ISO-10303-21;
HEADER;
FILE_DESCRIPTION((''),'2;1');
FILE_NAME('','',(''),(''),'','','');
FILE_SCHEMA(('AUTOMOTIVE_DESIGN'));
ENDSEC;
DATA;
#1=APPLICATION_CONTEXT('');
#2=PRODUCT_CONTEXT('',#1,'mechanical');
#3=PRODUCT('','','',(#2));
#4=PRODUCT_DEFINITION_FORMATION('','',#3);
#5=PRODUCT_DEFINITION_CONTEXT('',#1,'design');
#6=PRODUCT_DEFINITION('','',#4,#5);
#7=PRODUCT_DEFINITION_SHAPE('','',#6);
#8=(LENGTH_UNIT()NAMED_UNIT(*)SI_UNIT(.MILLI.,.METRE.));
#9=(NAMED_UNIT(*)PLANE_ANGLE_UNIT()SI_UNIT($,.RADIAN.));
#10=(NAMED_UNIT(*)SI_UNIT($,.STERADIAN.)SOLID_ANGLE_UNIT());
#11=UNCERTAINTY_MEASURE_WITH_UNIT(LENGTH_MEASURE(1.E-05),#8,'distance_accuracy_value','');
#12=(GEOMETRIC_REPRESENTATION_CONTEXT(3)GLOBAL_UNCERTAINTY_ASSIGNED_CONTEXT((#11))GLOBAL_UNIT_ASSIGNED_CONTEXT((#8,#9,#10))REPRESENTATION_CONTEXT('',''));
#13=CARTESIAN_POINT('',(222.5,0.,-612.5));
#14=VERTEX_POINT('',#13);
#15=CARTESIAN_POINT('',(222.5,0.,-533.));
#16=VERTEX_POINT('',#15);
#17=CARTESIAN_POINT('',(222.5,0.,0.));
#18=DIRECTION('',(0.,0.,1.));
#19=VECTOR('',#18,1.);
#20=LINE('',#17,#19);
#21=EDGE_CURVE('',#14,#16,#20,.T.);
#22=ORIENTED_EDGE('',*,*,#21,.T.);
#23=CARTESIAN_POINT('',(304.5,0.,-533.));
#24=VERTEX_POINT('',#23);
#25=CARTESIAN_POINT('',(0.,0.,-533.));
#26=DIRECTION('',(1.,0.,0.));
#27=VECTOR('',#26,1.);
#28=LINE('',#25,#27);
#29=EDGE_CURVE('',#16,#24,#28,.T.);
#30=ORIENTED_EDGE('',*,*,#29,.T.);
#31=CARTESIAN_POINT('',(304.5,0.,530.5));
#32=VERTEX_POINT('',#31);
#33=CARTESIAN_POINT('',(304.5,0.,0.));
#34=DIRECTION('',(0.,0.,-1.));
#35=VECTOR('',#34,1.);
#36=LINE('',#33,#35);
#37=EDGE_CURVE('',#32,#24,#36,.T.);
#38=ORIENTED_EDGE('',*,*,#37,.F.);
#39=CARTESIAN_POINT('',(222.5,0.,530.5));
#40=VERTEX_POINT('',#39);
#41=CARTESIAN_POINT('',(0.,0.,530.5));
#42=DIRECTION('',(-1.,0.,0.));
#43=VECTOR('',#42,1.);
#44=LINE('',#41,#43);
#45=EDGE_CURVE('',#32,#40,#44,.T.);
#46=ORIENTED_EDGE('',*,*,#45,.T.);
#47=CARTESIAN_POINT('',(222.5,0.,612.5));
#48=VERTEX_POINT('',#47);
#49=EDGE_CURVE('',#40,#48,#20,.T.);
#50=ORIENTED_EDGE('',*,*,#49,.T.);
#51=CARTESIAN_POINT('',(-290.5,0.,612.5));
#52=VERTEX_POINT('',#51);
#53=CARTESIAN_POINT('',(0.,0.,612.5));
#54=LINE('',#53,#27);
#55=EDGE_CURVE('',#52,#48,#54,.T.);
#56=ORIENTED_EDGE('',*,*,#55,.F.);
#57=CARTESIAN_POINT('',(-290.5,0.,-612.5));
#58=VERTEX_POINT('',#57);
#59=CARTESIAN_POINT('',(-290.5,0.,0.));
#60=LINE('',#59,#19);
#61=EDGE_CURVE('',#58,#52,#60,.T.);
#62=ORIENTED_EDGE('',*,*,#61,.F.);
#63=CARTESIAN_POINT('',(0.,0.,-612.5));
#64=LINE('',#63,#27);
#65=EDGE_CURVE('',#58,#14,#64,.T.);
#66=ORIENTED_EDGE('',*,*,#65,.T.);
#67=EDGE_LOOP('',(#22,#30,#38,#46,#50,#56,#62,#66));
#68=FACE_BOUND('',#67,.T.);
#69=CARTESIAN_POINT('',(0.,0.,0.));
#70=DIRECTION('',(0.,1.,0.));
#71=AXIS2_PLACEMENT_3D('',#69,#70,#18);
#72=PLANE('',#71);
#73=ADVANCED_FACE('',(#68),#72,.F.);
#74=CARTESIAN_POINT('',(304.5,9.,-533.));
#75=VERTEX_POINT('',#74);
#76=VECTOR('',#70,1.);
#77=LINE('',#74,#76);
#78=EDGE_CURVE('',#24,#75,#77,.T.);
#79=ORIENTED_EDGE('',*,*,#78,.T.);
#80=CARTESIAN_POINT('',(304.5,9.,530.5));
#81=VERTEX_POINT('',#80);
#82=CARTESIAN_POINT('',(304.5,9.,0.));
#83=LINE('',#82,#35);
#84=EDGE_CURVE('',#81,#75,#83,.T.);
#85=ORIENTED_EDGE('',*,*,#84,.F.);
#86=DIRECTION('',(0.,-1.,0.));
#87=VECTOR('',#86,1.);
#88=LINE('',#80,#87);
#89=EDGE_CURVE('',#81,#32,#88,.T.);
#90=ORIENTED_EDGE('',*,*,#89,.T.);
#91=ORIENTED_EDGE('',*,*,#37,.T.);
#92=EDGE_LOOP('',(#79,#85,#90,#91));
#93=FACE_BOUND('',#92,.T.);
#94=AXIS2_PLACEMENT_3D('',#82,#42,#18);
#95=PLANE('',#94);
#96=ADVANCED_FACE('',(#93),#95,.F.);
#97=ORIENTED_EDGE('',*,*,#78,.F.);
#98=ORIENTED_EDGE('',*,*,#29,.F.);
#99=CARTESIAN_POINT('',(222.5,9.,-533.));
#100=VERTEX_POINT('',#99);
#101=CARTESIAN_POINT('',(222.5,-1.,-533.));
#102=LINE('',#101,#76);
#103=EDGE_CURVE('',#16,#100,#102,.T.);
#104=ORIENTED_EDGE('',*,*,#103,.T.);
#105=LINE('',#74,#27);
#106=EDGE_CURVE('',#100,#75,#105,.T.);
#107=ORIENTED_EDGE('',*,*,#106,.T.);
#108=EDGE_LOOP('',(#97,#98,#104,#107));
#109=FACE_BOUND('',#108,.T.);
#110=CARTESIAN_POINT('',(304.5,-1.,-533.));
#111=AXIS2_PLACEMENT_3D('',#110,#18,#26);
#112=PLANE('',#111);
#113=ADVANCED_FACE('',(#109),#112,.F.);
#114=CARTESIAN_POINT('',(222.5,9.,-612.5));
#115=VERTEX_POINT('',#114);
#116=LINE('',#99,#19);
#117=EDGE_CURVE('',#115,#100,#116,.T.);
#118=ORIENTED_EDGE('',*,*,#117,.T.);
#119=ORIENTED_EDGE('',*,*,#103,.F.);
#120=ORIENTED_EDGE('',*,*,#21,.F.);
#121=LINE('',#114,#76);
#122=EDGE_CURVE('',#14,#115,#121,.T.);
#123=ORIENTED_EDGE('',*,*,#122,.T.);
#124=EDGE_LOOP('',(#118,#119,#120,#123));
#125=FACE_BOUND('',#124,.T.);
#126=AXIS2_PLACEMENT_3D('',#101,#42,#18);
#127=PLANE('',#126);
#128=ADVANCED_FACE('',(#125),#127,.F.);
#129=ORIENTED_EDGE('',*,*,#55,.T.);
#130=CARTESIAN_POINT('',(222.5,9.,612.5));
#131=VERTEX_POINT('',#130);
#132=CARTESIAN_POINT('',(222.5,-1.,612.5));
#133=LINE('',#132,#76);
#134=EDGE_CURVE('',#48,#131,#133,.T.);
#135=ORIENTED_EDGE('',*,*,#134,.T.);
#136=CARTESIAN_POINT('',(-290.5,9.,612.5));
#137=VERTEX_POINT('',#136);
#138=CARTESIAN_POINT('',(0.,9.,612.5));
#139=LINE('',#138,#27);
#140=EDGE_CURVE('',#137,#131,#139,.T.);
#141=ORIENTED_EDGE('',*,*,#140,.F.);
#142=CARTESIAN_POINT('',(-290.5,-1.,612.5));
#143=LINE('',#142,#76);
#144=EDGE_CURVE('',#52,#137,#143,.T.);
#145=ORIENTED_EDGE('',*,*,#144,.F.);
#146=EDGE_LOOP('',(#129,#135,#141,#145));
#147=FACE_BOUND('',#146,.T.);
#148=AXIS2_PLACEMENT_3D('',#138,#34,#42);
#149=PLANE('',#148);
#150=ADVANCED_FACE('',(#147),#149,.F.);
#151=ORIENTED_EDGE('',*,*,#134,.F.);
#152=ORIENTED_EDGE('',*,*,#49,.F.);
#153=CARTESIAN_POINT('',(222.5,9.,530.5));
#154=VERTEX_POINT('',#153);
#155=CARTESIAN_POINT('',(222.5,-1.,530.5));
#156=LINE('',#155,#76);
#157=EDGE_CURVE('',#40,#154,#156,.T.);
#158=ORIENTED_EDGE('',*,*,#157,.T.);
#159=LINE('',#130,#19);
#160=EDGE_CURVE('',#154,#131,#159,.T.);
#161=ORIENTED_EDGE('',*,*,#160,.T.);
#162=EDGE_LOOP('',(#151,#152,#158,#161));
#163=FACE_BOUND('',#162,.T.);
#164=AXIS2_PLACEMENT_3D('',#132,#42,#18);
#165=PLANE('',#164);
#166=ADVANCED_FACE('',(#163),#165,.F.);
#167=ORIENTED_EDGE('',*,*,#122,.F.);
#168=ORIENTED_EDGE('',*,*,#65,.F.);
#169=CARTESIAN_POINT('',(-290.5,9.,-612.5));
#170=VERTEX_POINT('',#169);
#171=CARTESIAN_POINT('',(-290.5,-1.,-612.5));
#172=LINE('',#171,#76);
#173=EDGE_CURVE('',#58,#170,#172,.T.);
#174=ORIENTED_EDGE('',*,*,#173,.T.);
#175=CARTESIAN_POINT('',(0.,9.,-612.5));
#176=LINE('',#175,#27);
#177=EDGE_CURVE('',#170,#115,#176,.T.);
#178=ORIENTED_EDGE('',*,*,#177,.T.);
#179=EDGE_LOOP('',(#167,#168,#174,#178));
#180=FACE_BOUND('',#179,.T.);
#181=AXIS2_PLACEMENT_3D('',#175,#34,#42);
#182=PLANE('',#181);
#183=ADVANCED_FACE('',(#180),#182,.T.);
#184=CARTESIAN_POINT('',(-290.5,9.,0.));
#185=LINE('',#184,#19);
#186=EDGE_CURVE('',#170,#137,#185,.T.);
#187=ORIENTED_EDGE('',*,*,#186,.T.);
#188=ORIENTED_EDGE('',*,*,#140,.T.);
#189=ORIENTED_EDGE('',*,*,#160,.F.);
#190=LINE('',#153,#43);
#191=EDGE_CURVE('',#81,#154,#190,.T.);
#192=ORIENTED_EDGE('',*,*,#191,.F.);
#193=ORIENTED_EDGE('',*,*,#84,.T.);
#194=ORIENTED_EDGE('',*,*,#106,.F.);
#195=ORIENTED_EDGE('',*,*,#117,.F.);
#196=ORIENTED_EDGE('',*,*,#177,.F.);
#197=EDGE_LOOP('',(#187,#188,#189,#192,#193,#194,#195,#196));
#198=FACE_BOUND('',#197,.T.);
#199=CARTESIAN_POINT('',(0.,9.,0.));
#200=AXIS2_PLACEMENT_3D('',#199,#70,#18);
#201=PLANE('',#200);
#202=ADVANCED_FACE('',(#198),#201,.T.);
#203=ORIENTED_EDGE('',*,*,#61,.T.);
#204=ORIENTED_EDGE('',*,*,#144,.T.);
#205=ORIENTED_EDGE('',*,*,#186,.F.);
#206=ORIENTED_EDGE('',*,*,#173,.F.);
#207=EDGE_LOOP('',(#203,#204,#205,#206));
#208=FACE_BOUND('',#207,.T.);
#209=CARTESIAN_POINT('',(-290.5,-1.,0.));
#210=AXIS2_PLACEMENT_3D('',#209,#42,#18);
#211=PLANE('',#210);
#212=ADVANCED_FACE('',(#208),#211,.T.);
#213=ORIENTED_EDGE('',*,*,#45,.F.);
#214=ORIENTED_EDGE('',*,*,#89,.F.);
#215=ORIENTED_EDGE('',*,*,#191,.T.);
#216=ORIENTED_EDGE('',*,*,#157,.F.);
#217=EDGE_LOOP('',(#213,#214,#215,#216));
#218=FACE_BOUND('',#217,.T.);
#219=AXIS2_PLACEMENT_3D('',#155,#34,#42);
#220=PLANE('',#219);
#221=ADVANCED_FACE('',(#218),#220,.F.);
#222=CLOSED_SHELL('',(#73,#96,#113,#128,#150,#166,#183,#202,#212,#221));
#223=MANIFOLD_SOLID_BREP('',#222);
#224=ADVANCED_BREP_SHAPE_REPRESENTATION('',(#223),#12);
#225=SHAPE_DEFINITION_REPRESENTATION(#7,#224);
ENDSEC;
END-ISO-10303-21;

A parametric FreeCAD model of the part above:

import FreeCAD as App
import Part
import Sketcher

V = App.Vector
Q = App.Units.Quantity


def add_polygon(sketch, points):
    """Adds a closed chain of lines whose ends are joined by coincident constraints."""
    first, n = sketch.GeometryCount, len(points)
    for a, b in zip(points, points[1:] + points[:1]):
        sketch.addGeometry(Part.LineSegment(App.Vector(*a, 0), App.Vector(*b, 0)), False)
    for i in range(n):
        sketch.addConstraint(Sketcher.Constraint("Coincident", first + i, 2, first + (i + 1) % n, 1))

doc = App.newDocument("Part")
body = doc.addObject("PartDesign::Body", "Body")

# Sketch on XZ plane
sketch1 = body.newObject("Sketcher::SketchObject", "Sketch")
sketch1.AttachmentSupport = (doc.getObject("XZ_Plane"), [""])
sketch1.MapMode = "FlatFace"
add_polygon(sketch1, [(-304, 612), (304, 612), (304, -612), (-304, -612)])  # lines 0-3
sketch1.addConstraint([
    Sketcher.Constraint("Horizontal", 0),
    Sketcher.Constraint("Vertical", 1),
    Sketcher.Constraint("Horizontal", 2),
    Sketcher.Constraint("Vertical", 3),
    Sketcher.Constraint("Symmetric", 0, 2, 2, 2, -1, 1),
    Sketcher.Constraint("DistanceX", 0, 1, 0, 2, Q("609 mm")),
    Sketcher.Constraint("DistanceY", 1, 2, 1, 1, Q("1225 mm")),
])
pad1 = body.newObject("PartDesign::Pad", "Pad")
pad1.Profile = sketch1
pad1.Length = 9
pad1.Reversed = True

# Sketch on XZ plane
sketch2 = body.newObject("Sketcher::SketchObject", "Sketch001")
sketch2.AttachmentSupport = (doc.getObject("XZ_Plane"), [""])
sketch2.MapMode = "FlatFace"
sketch2.AttachmentOffset = App.Placement(V(0, 0, -9), App.Rotation())
add_polygon(sketch2, [(-304, -612), (-304, 612), (-290, 612), (-290, -612)])  # lines 0-3
sketch2.addConstraint([
    Sketcher.Constraint("Vertical", 0),
    Sketcher.Constraint("Horizontal", 1),
    Sketcher.Constraint("Vertical", 2),
    Sketcher.Constraint("Horizontal", 3),
    Sketcher.Constraint("DistanceX", 1, 1, 1, 2, Q("14 mm")),
    Sketcher.Constraint("DistanceY", 0, 1, 0, 2, Q("1225 mm")),
    Sketcher.Constraint("DistanceX", 0, 2, -1, 1, Q("304.5 mm")),
    Sketcher.Constraint("DistanceY", -1, 1, 0, 2, Q("612.5 mm")),
])
pocket1 = body.newObject("PartDesign::Pocket", "Pocket")
pocket1.Profile = sketch2
pocket1.Length = 10
pocket1.Reversed = True

# Sketch on XZ plane
sketch3 = body.newObject("Sketcher::SketchObject", "Sketch002")
sketch3.AttachmentSupport = (doc.getObject("XZ_Plane"), [""])
sketch3.MapMode = "FlatFace"
sketch3.AttachmentOffset = App.Placement(V(0, 0, -9), App.Rotation())
add_polygon(sketch3, [(222, 530), (222, 612), (304, 612), (304, 530)])  # lines 0-3
add_polygon(sketch3, [(222, -533), (304, -533), (304, -612), (222, -615)])  # lines 4-7
sketch3.addConstraint([
    Sketcher.Constraint("Vertical", 0),
    Sketcher.Constraint("Horizontal", 1),
    Sketcher.Constraint("Vertical", 2),
    Sketcher.Constraint("Horizontal", 3),
    Sketcher.Constraint("Horizontal", 4),
    Sketcher.Constraint("Vertical", 5),
    Sketcher.Constraint("Vertical", 7),
    Sketcher.Constraint("Symmetric", 1, 2, 5, 2, -1),
    Sketcher.Constraint("Vertical", 3, 2, 6, 2),
    Sketcher.Constraint("Equal", 4, 0),
    Sketcher.Constraint("Equal", 2, 7),
    Sketcher.Constraint("DistanceX", 1, 1, 1, 2, Q("82 mm")),
    Sketcher.Constraint("DistanceY", 5, 2, 5, 1, Q("79.5 mm")),
    Sketcher.Constraint("DistanceY", 4, 2, -1, 1, Q("533 mm")),
    Sketcher.Constraint("DistanceX", -1, 1, 0, 2, Q("222.5 mm")),
])
pocket2 = body.newObject("PartDesign::Pocket", "Pocket001")
pocket2.Profile = sketch3
pocket2.Length = 10
pocket2.Reversed = True

doc.recompute()
